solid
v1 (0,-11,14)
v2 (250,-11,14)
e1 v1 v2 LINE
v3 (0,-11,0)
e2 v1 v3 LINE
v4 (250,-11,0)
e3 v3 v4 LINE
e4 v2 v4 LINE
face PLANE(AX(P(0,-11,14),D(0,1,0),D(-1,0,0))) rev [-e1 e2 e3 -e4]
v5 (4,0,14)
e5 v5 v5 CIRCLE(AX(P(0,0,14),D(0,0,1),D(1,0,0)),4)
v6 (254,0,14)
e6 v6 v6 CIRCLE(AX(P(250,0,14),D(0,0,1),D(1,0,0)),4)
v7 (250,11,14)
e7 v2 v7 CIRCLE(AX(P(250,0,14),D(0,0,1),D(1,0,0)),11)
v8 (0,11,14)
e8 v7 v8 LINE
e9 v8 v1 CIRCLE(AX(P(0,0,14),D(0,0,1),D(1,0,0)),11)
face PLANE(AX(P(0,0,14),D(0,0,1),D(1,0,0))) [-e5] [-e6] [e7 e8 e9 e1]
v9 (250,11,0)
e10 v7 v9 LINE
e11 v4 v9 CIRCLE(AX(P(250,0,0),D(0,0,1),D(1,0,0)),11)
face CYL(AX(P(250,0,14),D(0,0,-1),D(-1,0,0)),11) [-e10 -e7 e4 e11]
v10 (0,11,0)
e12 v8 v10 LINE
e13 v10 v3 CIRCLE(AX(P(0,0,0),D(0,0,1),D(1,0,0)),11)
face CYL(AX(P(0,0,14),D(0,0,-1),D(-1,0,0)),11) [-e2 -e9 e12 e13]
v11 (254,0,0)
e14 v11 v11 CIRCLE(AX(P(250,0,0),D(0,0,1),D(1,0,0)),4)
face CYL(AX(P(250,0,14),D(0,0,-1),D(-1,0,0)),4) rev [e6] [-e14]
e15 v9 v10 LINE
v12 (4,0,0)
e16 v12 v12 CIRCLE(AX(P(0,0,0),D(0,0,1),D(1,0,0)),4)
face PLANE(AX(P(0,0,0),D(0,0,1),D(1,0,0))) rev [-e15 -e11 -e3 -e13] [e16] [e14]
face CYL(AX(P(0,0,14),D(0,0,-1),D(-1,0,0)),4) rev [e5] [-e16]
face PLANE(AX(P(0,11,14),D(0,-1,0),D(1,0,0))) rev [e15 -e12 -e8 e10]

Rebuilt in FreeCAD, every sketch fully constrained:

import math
import FreeCAD as App
import Part
import Sketcher
from FreeCAD import Vector

doc = App.newDocument("Part")
body = doc.addObject("PartDesign::Body", "Body")

# Sketch on XY plane
sketch1 = body.newObject("Sketcher::SketchObject", "Sketch")
sketch1.AttachmentSupport = (doc.getObject("XY_Plane"), [""])
sketch1.MapMode = "FlatFace"
sketch1.addGeometry([
    Part.LineSegment(Vector(250, 11, 0), Vector(0, 11, 0)),
    Part.ArcOfCircle(Part.Circle(Vector(0, 0, 0), Vector(0, 0, 1), 11), math.radians(90), math.radians(270)),
    Part.LineSegment(Vector(0, -11, 0), Vector(250, -11, 0)),
    Part.ArcOfCircle(Part.Circle(Vector(250, 0, 0), Vector(0, 0, 1), 11), math.radians(-90), math.radians(90)),
], False)
sketch1.addConstraint([
    Sketcher.Constraint("Tangent", 0, 2, 1, 1),
    Sketcher.Constraint("Tangent", 1, 2, 2, 1),
    Sketcher.Constraint("Tangent", 2, 2, 3, 1),
    Sketcher.Constraint("Tangent", 3, 2, 0, 1),
    Sketcher.Constraint("Horizontal", 0),
    Sketcher.Constraint("Horizontal", 2),
    Sketcher.Constraint("Coincident", 1, 3, -1, 1),
    Sketcher.Constraint("Radius", 1, 11.0),
    Sketcher.Constraint("DistanceX", 0, 2, 0, 1, 250.0),
])
pad1 = body.newObject("PartDesign::Pad", "Pad")
pad1.Profile = sketch1
pad1.Length = 14

# Sketch on XY plane
sketch2 = body.newObject("Sketcher::SketchObject", "Sketch001")
sketch2.AttachmentSupport = (doc.getObject("XY_Plane"), [""])
sketch2.MapMode = "FlatFace"
sketch2.addGeometry([
    Part.Circle(Vector(0, 0, 0), Vector(0, 0, 1), 4),
    Part.Circle(Vector(250, 0, 0), Vector(0, 0, 1), 4),
], False)
sketch2.addConstraint([
    Sketcher.Constraint("Coincident", 0, 3, -1, 1),
    Sketcher.Constraint("Equal", 0, 1),
    Sketcher.Constraint("PointOnObject", 1, 3, -1),
    Sketcher.Constraint("Diameter", 0, 8.0),
    Sketcher.Constraint("DistanceX", -1, 1, 1, 3, 250.0),
])
pocket1 = body.newObject("PartDesign::Pocket", "Pocket")
pocket1.Profile = sketch2
pocket1.Length = 14
pocket1.Reversed = True

doc.recompute()
